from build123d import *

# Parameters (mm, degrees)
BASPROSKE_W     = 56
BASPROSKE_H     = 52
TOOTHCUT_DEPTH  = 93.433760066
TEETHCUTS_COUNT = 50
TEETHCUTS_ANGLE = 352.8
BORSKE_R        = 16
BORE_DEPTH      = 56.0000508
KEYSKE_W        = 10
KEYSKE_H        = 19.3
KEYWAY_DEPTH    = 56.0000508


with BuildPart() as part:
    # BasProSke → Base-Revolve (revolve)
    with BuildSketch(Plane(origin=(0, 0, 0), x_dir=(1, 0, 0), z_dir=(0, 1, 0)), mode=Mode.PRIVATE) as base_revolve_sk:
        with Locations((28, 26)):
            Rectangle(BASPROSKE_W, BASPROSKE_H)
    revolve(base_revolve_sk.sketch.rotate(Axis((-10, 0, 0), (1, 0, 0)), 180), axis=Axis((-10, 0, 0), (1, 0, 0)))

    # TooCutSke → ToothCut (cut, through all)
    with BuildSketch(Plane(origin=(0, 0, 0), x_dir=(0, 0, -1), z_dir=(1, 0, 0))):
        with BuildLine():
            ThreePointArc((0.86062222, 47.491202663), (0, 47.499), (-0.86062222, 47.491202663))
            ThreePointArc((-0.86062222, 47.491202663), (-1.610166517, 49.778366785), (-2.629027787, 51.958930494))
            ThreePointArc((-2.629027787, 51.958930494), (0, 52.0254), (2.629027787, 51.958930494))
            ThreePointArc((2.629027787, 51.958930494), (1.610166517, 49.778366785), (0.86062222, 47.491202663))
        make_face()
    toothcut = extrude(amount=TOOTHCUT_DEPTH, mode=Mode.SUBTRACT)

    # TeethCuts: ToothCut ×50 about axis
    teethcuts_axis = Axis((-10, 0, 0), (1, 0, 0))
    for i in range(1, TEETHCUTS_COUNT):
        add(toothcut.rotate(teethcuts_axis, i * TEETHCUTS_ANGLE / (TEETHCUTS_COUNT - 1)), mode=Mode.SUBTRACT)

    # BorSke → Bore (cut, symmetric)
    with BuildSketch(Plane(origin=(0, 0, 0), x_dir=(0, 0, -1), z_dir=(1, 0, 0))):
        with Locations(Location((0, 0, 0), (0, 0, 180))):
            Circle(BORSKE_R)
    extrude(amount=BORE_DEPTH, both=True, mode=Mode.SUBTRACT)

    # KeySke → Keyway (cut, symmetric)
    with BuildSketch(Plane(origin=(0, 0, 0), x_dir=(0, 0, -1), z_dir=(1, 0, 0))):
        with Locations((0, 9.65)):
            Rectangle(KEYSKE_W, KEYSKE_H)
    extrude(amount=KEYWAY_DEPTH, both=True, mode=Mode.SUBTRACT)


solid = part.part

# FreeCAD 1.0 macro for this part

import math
import FreeCAD as App
import Part
import Sketcher

V = App.Vector
Q = App.Units.Quantity

doc = App.newDocument("Part")
body = doc.addObject("PartDesign::Body", "Body")

# Sketch on XZ plane
sketch1 = body.newObject("Sketcher::SketchObject", "Sketch")
sketch1.AttachmentSupport = (doc.getObject("XZ_Plane"), [""])
sketch1.MapMode = "FlatFace"
sketch1.addGeometry(Part.LineSegment(V(0, -52, 0), V(0, 0, 0)), False)
sketch1.addGeometry(Part.LineSegment(V(0, 0, 0), V(56, 0, 0)), False)
sketch1.addGeometry(Part.LineSegment(V(56, 0, 0), V(56, -52, 0)), False)
sketch1.addGeometry(Part.LineSegment(V(56, -52, 0), V(0, -52, 0)), False)
sketch1.addConstraint(Sketcher.Constraint("Coincident", 0, 2, 1, 1))
sketch1.addConstraint(Sketcher.Constraint("Coincident", 1, 2, 2, 1))
sketch1.addConstraint(Sketcher.Constraint("Coincident", 2, 2, 3, 1))
sketch1.addConstraint(Sketcher.Constraint("Coincident", 3, 2, 0, 1))
sketch1.addConstraint(Sketcher.Constraint("Vertical", 0))
sketch1.addConstraint(Sketcher.Constraint("Horizontal", 1))
sketch1.addConstraint(Sketcher.Constraint("Vertical", 2))
sketch1.addConstraint(Sketcher.Constraint("Horizontal", 3))
sketch1.addConstraint(Sketcher.Constraint("Coincident", 0, 2, -1, 1))
sketch1.addConstraint(Sketcher.Constraint("DistanceX", 1, 1, 1, 2, Q("56 mm")))
sketch1.addConstraint(Sketcher.Constraint("DistanceY", 0, 1, 0, 2, Q("52 mm")))
revolution = body.newObject("PartDesign::Revolution", "Revolution")
revolution.Profile = sketch1
revolution.ReferenceAxis = (sketch1, ["H_Axis"])
revolution.Angle = 360

# Sketch on YZ plane
sketch2 = body.newObject("Sketcher::SketchObject", "Sketch001")
sketch2.AttachmentSupport = (doc.getObject("YZ_Plane"), [""])
sketch2.MapMode = "FlatFace"
sketch2.addGeometry(Part.ArcOfCircle(Part.Circle(V(0.000001, 0, 0), V(0, 0, 1), 47.498999), math.radians(-1.038184), math.radians(1.038184)), False)
sketch2.addGeometry(Part.ArcOfCircle(Part.Circle(V(42.41765, -20.206398, 0), V(0, 0, 1), 20), math.radians(61.506176), math.radians(75.304757)), False)
sketch2.addGeometry(Part.ArcOfCircle(Part.Circle(V(0, 0, 0), V(0, 0, 1), 52.0254), math.radians(-2.896592), math.radians(2.896592)), False)
sketch2.addGeometry(Part.ArcOfCircle(Part.Circle(V(42.41765, 20.206398, 0), V(0, 0, 1), 20), math.radians(-75.304757), math.radians(-61.506176)), False)
sketch2.addConstraint(Sketcher.Constraint("Coincident", 0, 1, 1, 2))
sketch2.addConstraint(Sketcher.Constraint("Coincident", 1, 1, 2, 1))
sketch2.addConstraint(Sketcher.Constraint("Coincident", 2, 2, 3, 2))
sketch2.addConstraint(Sketcher.Constraint("Coincident", 3, 1, 0, 2))
sketch2.addConstraint(Sketcher.Constraint("Coincident", 0, 3, -1, 1))
sketch2.addConstraint(Sketcher.Constraint("Coincident", 2, 3, -1, 1))
sketch2.addConstraint(Sketcher.Constraint("Radius", 1, Q("20 mm")))
sketch2.addConstraint(Sketcher.Constraint("Radius", 3, Q("20 mm")))
sketch2.addConstraint(Sketcher.Constraint("Radius", 0, Q("47.498999 mm")))
sketch2.addConstraint(Sketcher.Constraint("Radius", 2, Q("52.0254 mm")))
sketch2.addConstraint(Sketcher.Constraint("DistanceY", 1, 3, -1, 1, Q("20.206398 mm")))
sketch2.addConstraint(Sketcher.Constraint("DistanceY", -1, 1, 3, 3, Q("20.206398 mm")))
sketch2.addConstraint(Sketcher.Constraint("DistanceX", 0, 3, 0, 1, Q("47.491202 mm")))
sketch2.addConstraint(Sketcher.Constraint("DistanceX", -1, 1, 3, 3, Q("42.41765 mm")))
pocket1 = body.newObject("PartDesign::Pocket", "Pocket")
pocket1.Profile = sketch2
pocket1.Type = "ThroughAll"
pocket1.Reversed = True
doc.recompute()

polarpattern = body.newObject("PartDesign::PolarPattern", "PolarPattern")
polarpattern.Originals = [pocket1]
polarpattern.Axis = (doc.getObject("X_Axis"), [""])
polarpattern.Angle = 360
polarpattern.Occurrences = 50
body.Tip = polarpattern

# Sketch on YZ plane
sketch3 = body.newObject("Sketcher::SketchObject", "Sketch002")
sketch3.AttachmentSupport = (doc.getObject("YZ_Plane"), [""])
sketch3.MapMode = "FlatFace"
sketch3.addGeometry(Part.Circle(V(0, 0, 0), V(0, 0, 1), 16), False)
sketch3.addConstraint(Sketcher.Constraint("Coincident", 0, 3, -1, 1))
sketch3.addConstraint(Sketcher.Constraint("Diameter", 0, Q("32 mm")))
pocket2 = body.newObject("PartDesign::Pocket", "Pocket001")
pocket2.Profile = sketch3
pocket2.Length = 112.000102
pocket2.Midplane = True

# Sketch on YZ plane
sketch4 = body.newObject("Sketcher::SketchObject", "Sketch003")
sketch4.AttachmentSupport = (doc.getObject("YZ_Plane"), [""])
sketch4.MapMode = "FlatFace"
sketch4.addGeometry(Part.LineSegment(V(19, 5, 0), V(0, 5, 0)), False)
sketch4.addGeometry(Part.LineSegment(V(0, 5, 0), V(0, -5, 0)), False)
sketch4.addGeometry(Part.LineSegment(V(0, -5, 0), V(19, -5, 0)), False)
sketch4.addGeometry(Part.LineSegment(V(19, -5, 0), V(19, 5, 0)), False)
sketch4.addConstraint(Sketcher.Constraint("Coincident", 0, 2, 1, 1))
sketch4.addConstraint(Sketcher.Constraint("Coincident", 1, 2, 2, 1))
sketch4.addConstraint(Sketcher.Constraint("Coincident", 2, 2, 3, 1))
sketch4.addConstraint(Sketcher.Constraint("Coincident", 3, 2, 0, 1))
sketch4.addConstraint(Sketcher.Constraint("Horizontal", 0))
sketch4.addConstraint(Sketcher.Constraint("Vertical", 1))
sketch4.addConstraint(Sketcher.Constraint("Horizontal", 2))
sketch4.addConstraint(Sketcher.Constraint("Vertical", 3))
sketch4.addConstraint(Sketcher.Constraint("Symmetric", 0, 2, 1, 2, -1, 1))
sketch4.addConstraint(Sketcher.Constraint("DistanceY", 1, 2, 1, 1, Q("10 mm")))
sketch4.addConstraint(Sketcher.Constraint("DistanceX", 0, 2, 0, 1, Q("19.3 mm")))
pocket3 = body.newObject("PartDesign::Pocket", "Pocket002")
pocket3.Profile = sketch4
pocket3.Length = 112.000102
pocket3.Midplane = True

doc.recompute()
